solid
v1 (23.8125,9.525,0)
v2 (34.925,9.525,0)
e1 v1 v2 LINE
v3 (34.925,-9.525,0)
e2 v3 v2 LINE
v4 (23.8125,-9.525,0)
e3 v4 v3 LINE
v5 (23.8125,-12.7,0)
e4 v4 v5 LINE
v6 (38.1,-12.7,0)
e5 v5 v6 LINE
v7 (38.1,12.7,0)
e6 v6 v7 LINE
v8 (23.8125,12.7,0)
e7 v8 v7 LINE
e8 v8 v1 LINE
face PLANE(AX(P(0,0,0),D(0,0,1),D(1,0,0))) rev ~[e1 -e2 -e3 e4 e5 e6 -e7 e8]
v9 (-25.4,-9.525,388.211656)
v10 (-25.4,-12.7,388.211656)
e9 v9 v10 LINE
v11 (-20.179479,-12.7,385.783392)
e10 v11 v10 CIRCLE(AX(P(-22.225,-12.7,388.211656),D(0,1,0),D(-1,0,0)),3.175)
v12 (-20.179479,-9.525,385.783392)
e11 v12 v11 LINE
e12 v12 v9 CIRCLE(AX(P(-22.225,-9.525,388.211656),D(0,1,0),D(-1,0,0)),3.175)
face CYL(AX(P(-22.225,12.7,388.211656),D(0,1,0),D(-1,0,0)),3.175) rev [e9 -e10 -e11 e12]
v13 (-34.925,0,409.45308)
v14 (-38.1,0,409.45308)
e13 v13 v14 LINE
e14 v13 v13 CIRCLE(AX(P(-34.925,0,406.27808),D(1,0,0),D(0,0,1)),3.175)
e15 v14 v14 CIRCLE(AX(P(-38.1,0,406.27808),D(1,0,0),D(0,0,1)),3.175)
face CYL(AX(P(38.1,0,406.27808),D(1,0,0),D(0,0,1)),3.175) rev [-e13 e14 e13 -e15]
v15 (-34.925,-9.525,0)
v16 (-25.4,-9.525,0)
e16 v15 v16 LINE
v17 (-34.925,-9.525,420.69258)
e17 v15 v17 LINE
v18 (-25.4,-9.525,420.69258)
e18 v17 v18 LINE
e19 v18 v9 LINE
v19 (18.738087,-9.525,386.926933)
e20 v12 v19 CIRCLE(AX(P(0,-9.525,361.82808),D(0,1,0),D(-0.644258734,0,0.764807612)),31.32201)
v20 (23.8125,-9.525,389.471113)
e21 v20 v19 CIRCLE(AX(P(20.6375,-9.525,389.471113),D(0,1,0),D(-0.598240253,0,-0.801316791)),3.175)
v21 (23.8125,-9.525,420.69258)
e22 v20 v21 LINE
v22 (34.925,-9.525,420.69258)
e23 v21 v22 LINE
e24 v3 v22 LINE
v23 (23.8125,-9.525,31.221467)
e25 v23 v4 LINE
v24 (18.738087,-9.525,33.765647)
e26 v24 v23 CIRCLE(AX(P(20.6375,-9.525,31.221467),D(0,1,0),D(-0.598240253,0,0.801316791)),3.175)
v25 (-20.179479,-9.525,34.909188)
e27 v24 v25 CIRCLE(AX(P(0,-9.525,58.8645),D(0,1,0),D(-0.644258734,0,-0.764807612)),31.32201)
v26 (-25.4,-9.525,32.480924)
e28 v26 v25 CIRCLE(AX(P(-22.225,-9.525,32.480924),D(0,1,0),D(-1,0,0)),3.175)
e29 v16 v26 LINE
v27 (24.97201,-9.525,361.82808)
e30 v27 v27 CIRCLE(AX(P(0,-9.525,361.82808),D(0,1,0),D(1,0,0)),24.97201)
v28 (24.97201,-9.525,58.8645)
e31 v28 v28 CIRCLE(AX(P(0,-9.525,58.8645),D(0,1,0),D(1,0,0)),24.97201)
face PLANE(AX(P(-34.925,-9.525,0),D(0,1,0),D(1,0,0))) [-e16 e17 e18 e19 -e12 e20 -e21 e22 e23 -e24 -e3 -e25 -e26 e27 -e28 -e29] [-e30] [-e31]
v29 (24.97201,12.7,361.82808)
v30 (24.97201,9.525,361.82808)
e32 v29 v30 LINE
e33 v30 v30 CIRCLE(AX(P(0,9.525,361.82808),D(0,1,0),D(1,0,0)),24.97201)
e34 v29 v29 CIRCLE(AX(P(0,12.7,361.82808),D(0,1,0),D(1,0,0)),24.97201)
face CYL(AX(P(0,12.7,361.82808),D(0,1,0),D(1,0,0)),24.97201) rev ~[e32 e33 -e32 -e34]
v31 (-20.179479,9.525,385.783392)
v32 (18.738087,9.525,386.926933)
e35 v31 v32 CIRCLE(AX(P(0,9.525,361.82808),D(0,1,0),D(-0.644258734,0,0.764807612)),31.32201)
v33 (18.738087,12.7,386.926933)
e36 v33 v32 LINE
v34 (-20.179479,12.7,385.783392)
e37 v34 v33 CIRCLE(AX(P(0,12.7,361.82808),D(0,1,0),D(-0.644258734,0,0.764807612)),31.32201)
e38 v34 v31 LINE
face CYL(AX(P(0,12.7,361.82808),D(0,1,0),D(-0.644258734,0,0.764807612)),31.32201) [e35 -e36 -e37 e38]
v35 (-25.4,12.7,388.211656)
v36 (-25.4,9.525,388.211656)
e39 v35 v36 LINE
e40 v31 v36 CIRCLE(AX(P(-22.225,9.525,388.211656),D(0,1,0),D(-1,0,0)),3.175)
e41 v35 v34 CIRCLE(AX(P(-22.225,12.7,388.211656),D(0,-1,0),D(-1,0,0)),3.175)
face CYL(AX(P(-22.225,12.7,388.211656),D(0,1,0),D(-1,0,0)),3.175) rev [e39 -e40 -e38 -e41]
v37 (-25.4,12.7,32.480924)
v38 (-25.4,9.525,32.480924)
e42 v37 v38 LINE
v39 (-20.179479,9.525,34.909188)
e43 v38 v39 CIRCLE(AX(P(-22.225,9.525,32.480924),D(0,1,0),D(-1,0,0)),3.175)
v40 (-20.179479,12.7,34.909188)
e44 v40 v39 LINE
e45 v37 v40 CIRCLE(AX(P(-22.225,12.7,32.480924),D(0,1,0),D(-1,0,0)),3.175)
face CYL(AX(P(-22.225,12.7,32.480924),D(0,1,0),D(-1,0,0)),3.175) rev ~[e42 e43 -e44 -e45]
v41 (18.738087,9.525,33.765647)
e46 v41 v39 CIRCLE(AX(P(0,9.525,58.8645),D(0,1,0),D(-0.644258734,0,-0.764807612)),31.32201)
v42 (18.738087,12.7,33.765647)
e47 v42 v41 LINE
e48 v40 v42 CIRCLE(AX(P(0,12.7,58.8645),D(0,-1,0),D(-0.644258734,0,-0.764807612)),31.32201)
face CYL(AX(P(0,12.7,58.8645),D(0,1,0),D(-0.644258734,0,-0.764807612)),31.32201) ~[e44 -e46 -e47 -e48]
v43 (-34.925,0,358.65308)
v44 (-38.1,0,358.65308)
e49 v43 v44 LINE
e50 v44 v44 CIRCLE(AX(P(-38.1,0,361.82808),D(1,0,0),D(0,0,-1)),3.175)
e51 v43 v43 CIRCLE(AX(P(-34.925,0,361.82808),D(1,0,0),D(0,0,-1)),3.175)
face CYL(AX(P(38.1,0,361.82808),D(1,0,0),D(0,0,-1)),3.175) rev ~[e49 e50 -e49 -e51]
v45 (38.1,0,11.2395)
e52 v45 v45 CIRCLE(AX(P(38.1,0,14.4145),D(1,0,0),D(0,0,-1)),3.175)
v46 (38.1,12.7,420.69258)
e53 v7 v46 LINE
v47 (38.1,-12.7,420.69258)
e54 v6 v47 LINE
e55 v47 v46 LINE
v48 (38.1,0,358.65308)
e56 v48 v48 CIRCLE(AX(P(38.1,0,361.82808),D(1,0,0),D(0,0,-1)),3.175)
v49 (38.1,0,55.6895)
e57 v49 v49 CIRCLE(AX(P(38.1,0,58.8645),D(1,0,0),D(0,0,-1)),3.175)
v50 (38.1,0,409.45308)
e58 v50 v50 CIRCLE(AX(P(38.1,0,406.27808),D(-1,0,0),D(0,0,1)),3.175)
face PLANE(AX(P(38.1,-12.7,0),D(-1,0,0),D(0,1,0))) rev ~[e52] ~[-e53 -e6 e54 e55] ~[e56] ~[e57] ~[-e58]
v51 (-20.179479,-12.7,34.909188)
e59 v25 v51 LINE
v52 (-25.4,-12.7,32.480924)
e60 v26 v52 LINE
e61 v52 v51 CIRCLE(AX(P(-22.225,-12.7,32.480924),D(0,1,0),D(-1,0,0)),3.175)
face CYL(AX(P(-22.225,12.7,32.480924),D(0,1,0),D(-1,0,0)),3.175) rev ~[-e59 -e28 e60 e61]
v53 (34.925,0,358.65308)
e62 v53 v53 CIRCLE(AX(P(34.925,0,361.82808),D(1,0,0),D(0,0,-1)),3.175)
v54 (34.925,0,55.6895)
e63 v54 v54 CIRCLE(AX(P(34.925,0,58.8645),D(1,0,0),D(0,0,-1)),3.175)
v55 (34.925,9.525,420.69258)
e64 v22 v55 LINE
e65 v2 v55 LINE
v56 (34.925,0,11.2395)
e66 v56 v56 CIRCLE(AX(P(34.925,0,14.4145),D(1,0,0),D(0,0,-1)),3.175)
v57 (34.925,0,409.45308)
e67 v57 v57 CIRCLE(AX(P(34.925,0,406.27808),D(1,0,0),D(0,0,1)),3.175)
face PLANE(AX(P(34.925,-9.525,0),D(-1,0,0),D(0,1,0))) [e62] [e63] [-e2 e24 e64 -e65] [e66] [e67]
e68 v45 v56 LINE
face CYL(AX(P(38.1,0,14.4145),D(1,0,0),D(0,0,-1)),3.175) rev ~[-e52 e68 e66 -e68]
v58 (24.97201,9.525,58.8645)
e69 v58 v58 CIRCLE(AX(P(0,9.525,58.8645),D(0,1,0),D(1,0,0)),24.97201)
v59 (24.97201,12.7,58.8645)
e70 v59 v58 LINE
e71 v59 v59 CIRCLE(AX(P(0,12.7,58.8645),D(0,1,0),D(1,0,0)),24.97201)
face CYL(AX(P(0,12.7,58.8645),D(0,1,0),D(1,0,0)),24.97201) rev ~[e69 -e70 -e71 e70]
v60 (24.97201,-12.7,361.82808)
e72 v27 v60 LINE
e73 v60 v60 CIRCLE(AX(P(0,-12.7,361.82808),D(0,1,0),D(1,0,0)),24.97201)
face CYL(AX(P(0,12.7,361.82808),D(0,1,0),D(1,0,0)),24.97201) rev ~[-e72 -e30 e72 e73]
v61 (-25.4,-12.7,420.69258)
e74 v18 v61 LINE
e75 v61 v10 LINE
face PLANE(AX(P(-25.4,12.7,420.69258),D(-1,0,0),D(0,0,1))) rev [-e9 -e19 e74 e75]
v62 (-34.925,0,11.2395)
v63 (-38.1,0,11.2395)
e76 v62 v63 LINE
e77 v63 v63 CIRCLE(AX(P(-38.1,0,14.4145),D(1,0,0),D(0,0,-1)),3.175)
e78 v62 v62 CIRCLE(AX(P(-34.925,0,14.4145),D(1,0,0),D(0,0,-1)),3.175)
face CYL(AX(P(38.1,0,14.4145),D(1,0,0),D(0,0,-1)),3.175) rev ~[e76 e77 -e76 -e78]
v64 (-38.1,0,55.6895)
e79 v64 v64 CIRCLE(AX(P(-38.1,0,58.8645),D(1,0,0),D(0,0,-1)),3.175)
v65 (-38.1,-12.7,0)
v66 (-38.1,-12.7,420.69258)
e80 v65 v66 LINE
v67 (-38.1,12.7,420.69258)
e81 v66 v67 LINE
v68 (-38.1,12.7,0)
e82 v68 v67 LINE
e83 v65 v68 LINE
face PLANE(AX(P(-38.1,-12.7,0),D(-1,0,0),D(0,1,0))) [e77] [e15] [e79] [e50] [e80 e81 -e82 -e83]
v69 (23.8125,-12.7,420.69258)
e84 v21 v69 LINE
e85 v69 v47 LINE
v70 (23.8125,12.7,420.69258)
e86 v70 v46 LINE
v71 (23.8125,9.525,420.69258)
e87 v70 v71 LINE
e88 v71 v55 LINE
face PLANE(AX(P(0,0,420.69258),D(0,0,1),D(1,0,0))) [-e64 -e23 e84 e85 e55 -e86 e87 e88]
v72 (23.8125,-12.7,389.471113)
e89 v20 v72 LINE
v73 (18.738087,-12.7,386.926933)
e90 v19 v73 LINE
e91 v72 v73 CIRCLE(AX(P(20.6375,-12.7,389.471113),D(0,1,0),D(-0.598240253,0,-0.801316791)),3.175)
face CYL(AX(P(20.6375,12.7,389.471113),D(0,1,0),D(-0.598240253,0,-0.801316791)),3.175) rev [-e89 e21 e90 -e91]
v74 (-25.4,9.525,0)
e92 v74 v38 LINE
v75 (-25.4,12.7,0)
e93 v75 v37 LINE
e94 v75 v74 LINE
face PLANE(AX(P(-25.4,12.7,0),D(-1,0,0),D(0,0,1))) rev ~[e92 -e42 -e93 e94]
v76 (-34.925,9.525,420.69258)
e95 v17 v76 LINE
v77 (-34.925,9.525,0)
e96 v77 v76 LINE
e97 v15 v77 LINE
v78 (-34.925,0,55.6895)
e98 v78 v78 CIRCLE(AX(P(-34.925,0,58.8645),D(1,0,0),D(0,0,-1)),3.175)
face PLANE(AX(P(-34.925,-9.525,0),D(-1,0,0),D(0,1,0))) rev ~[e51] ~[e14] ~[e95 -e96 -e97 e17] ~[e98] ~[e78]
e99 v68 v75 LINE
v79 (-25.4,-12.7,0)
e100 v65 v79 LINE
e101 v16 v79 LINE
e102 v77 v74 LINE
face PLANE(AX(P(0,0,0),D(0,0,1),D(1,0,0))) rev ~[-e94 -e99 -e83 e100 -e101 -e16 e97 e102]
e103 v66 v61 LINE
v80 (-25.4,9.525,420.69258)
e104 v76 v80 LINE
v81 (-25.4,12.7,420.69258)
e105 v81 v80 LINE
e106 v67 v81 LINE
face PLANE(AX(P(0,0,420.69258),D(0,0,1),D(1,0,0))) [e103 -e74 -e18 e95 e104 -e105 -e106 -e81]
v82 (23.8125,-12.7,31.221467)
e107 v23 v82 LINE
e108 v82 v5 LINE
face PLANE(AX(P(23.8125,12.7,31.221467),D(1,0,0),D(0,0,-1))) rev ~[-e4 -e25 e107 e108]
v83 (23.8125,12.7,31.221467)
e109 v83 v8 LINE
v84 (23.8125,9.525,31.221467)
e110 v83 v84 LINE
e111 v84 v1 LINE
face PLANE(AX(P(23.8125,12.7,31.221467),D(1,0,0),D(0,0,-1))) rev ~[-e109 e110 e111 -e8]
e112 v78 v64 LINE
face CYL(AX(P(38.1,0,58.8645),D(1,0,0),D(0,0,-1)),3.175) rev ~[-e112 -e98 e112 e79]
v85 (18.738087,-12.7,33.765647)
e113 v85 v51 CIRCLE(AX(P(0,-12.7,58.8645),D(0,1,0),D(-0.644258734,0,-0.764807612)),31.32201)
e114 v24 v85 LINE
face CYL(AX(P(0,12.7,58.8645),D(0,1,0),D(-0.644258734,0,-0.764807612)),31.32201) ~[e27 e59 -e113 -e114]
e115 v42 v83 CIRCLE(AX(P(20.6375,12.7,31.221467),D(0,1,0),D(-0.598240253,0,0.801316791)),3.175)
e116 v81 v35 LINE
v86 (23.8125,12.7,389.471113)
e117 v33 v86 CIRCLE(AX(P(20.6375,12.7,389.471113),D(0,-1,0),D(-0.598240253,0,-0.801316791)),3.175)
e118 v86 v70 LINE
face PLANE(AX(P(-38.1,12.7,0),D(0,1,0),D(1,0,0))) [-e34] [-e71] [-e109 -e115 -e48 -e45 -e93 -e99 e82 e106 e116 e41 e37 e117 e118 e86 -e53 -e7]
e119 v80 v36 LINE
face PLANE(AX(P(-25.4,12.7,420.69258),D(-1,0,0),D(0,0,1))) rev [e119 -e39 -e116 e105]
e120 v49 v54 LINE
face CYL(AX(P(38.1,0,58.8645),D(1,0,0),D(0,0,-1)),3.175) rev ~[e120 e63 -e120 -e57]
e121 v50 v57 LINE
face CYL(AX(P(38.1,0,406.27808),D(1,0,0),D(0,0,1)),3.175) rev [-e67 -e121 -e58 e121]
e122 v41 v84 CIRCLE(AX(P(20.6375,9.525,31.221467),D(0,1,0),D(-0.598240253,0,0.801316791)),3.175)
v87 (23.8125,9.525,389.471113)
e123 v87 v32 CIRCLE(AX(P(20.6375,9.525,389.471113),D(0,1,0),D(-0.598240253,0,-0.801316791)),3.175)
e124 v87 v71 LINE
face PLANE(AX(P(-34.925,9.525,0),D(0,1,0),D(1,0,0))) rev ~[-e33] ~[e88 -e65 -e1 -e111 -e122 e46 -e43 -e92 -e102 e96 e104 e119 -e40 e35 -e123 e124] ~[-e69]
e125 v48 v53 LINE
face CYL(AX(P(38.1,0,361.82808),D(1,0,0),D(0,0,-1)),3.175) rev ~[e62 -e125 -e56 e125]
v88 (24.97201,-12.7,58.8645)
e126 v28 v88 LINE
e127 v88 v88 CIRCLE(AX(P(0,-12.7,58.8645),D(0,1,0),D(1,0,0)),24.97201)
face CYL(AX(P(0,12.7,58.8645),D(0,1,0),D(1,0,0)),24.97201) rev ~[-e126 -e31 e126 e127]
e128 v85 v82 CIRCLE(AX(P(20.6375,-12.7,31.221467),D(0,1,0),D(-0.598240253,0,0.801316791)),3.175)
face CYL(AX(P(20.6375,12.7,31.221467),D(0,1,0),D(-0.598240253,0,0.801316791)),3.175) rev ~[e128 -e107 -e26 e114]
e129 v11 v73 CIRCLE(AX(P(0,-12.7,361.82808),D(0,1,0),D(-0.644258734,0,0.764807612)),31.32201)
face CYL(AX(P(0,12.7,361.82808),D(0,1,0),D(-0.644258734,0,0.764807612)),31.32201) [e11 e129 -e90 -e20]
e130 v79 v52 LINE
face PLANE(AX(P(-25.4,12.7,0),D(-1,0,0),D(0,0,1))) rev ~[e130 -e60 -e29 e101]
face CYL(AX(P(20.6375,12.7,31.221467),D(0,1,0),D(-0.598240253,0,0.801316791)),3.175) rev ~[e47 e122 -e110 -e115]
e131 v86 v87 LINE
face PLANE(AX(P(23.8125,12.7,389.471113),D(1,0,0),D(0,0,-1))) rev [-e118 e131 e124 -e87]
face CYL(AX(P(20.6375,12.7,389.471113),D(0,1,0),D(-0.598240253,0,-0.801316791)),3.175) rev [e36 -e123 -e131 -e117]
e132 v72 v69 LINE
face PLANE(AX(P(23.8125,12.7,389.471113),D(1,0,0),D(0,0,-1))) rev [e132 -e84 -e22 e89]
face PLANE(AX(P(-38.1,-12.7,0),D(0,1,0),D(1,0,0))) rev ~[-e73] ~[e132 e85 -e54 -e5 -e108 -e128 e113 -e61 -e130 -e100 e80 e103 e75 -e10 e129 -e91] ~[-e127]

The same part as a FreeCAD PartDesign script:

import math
import FreeCAD as App
import Part
import Sketcher
Q = App.Units.Quantity


def add_polygon(sketch, points):
    """Adds a closed chain of lines whose ends are joined by coincident constraints."""
    first, n = sketch.GeometryCount, len(points)
    for a, b in zip(points, points[1:] + points[:1]):
        sketch.addGeometry(Part.LineSegment(App.Vector(*a, 0), App.Vector(*b, 0)), False)
    for i in range(n):
        sketch.addConstraint(Sketcher.Constraint("Coincident", first + i, 2, first + (i + 1) % n, 1))

doc = App.newDocument("Part")
params = doc.addObject("Spreadsheet::Sheet", "Params")
for row, (alias, value) in enumerate([
    ("sketch1_width", "3 in"),
    ("sketch1_height", "1 in"),
    ("sketch1_width2", "2.75 in"),
    ("sketch1_height2", "0.75 in"),
    ("pad1_length", "16.5627 in"),
    ("sketch3_radius", "0.125 in"),
    ("sketch3_width", "1.9375 in"),
    ("sketch4_diameter", "0.25 in"),
    ("sketch5_diameter", "0.25 in"),
], start=1):
    params.set(f"A{row}", alias)
    params.set(f"B{row}", "=" + value)
    params.setAlias(f"B{row}", alias)

body = doc.addObject("PartDesign::Body", "Body")

# Sketch on XY plane
sketch1 = body.newObject("Sketcher::SketchObject", "Sketch")
sketch1.AttachmentSupport = (doc.getObject("XY_Plane"), [""])
sketch1.MapMode = "FlatFace"
add_polygon(sketch1, [(-38, 13), (-38, -13), (38, -13), (38, 13)])  # lines 0-3
add_polygon(sketch1, [(35, -10), (-35, -10), (-35, 10), (35, 10)])  # lines 4-7
sketch1.addConstraint([
    Sketcher.Constraint("Vertical", 0),
    Sketcher.Constraint("Horizontal", 1),
    Sketcher.Constraint("Vertical", 2),
    Sketcher.Constraint("Horizontal", 3),
    Sketcher.Constraint("Horizontal", 4),
    Sketcher.Constraint("Vertical", 5),
    Sketcher.Constraint("Horizontal", 6),
    Sketcher.Constraint("Vertical", 7),
    Sketcher.Constraint("Symmetric", 0, 2, 2, 2, -1, 1),
    Sketcher.Constraint("Symmetric", 4, 2, 6, 2, -1, 1),
    Sketcher.Constraint("DistanceX", 1, 1, 1, 2, Q("3 in")),
    Sketcher.Constraint("DistanceY", 0, 2, 0, 1, Q("1 in")),
    Sketcher.Constraint("DistanceX", 4, 2, 4, 1, Q("2.75 in")),
    Sketcher.Constraint("DistanceY", 5, 1, 5, 2, Q("0.75 in")),
])
sketch1.setExpression("Constraints[18]", "Params.sketch1_width")
sketch1.setExpression("Constraints[19]", "Params.sketch1_height")
sketch1.setExpression("Constraints[20]", "Params.sketch1_width2")
sketch1.setExpression("Constraints[21]", "Params.sketch1_height2")
pad1 = body.newObject("PartDesign::Pad", "Pad")
pad1.Profile = sketch1
pad1.setExpression("Length", "Params.pad1_length")

# Sketch on XZ plane
sketch2 = body.newObject("Sketcher::SketchObject", "Sketch001")
sketch2.AttachmentSupport = (doc.getObject("XZ_Plane"), [""])
sketch2.MapMode = "FlatFace"
sketch2.AttachmentOffset = App.Placement(App.Vector(0, 0, -0.5 * 25.4), App.Rotation())
sketch2.addGeometry([
    Part.Circle(App.Vector(0, 362, 0), App.Vector(0, 0, 1), 25),
    Part.Circle(App.Vector(0, 59, 0), App.Vector(0, 0, 1), 25),
], False)
sketch2.addConstraint([
    Sketcher.Constraint("Equal", 0, 1),
    Sketcher.Constraint("PointOnObject", 0, 3, -2),
    Sketcher.Constraint("PointOnObject", 1, 3, -2),
    Sketcher.Constraint("Diameter", 0, Q("1.9663 in")),
    Sketcher.Constraint("DistanceY", -1, 1, 0, 3, Q("14.2452 in")),
    Sketcher.Constraint("DistanceY", -1, 1, 1, 3, Q("2.3175 in")),
])
pocket1 = body.newObject("PartDesign::Pocket", "Pocket")
pocket1.Profile = sketch2
pocket1.Type = "ThroughAll"
pocket1.Reversed = True

# Sketch on XZ plane
sketch3 = body.newObject("Sketcher::SketchObject", "Sketch002")
sketch3.AttachmentSupport = (doc.getObject("XZ_Plane"), [""])
sketch3.MapMode = "FlatFace"
sketch3.AttachmentOffset = App.Placement(App.Vector(0, 0, -0.5 * 25.4), App.Rotation())
sketch3.addGeometry([
    Part.LineSegment(App.Vector(23.8, 0, 0), App.Vector(-25.4, 0, 0)),  # 0
    Part.LineSegment(App.Vector(-25.4, 0, 0), App.Vector(-25.4, 32.5, 0)),  # 1
    Part.ArcOfCircle(Part.Circle(App.Vector(-22.2, 32.5, 0), App.Vector(0, 0, 1), 3.2), math.radians(50), math.radians(180)),  # 2
    Part.ArcOfCircle(Part.Circle(App.Vector(0, 58.9, 0), App.Vector(0, 0, 1), 31.3), math.radians(-130), math.radians(-53)),  # 3
    Part.ArcOfCircle(Part.Circle(App.Vector(20.6, 31.2, 0), App.Vector(0, 0, 1), 3.2), math.radians(0), math.radians(127)),  # 4
    Part.LineSegment(App.Vector(23.8, 31.2, 0), App.Vector(23.8, 0, 0)),  # 5
], False)
sketch3.addConstraint([
    Sketcher.Constraint("Coincident", 0, 2, 1, 1),
    Sketcher.Constraint("Tangent", 1, 2, 2, 2),
    Sketcher.Constraint("Tangent", 2, 1, 3, 1),
    Sketcher.Constraint("Tangent", 3, 2, 4, 2),
    Sketcher.Constraint("Tangent", 4, 1, 5, 1),
    Sketcher.Constraint("Coincident", 5, 2, 0, 1),
    Sketcher.Constraint("Horizontal", 0),
    Sketcher.Constraint("Vertical", 1),
    Sketcher.Constraint("Vertical", 5),
    Sketcher.Constraint("Equal", 2, 4),
    Sketcher.Constraint("PointOnObject", 3, 3, -2),
    Sketcher.Constraint("PointOnObject", 0, 2, -1),
    Sketcher.Constraint("DistanceX", 0, 2, -1, 1, Q("1 in")),
    Sketcher.Constraint("Radius", 2, Q("0.125 in")),
    Sketcher.Constraint("DistanceX", 0, 2, 0, 1, Q("1.9375 in")),
    Sketcher.Constraint("Radius", 3, 31.32201),
    Sketcher.Constraint("DistanceY", -1, 1, 3, 3, Q("2.3175 in")),
])
sketch3.setExpression("Constraints[13]", "Params.sketch3_radius")
sketch3.setExpression("Constraints[14]", "Params.sketch3_width")
pocket2 = body.newObject("PartDesign::Pocket", "Pocket001")
pocket2.Profile = sketch3
pocket2.Type = "ThroughAll"
pocket2.Reversed = True

# Sketch on YZ plane
sketch4 = body.newObject("Sketcher::SketchObject", "Sketch003")
sketch4.AttachmentSupport = (doc.getObject("YZ_Plane"), [""])
sketch4.MapMode = "FlatFace"
sketch4.AttachmentOffset = App.Placement(App.Vector(0, 0, 1.5 * 25.4), App.Rotation())
sketch4.addGeometry(Part.Circle(App.Vector(0, 14.4, 0), App.Vector(0, 0, 1), 3.2), False)
sketch4.addConstraint([
    Sketcher.Constraint("PointOnObject", 0, 3, -2),
    Sketcher.Constraint("Diameter", 0, Q("0.25 in")),
    Sketcher.Constraint("DistanceY", -1, 1, 0, 3, Q("0.5675 in")),
])
sketch4.setExpression("Constraints[1]", "Params.sketch4_diameter")
pocket3 = body.newObject("PartDesign::Pocket", "Pocket002")
pocket3.Profile = sketch4
pocket3.Type = "ThroughAll"
doc.recompute()

datumplane = body.newObject("PartDesign::Plane", "DatumPlane")
datumplane.AttachmentSupport = (doc.getObject("XY_Plane"), [""])
datumplane.MapMode = "FlatFace"
datumplane.AttachmentOffset = App.Placement(App.Vector(0, 0, 210.34629), App.Rotation())
mirrored = body.newObject("PartDesign::Mirrored", "Mirrored")
mirrored.Originals = [pocket2, pocket3]
mirrored.MirrorPlane = (datumplane, [""])
body.Tip = mirrored

# Sketch on YZ plane
sketch5 = body.newObject("Sketcher::SketchObject", "Sketch004")
sketch5.AttachmentSupport = (doc.getObject("YZ_Plane"), [""])
sketch5.MapMode = "FlatFace"
sketch5.AttachmentOffset = App.Placement(App.Vector(0, 0, 1.5 * 25.4), App.Rotation())
sketch5.addGeometry([
    Part.Circle(App.Vector(0, 58.9, 0), App.Vector(0, 0, 1), 3.2),
    Part.Circle(App.Vector(0, 361.8, 0), App.Vector(0, 0, 1), 3.2),
], False)
sketch5.addConstraint([
    Sketcher.Constraint("Equal", 0, 1),
    Sketcher.Constraint("PointOnObject", 0, 3, -2),
    Sketcher.Constraint("PointOnObject", 1, 3, -2),
    Sketcher.Constraint("Diameter", 0, Q("0.25 in")),
    Sketcher.Constraint("DistanceY", -1, 1, 0, 3, Q("2.3175 in")),
    Sketcher.Constraint("DistanceY", -1, 1, 1, 3, Q("14.2452 in")),
])
sketch5.setExpression("Constraints[3]", "Params.sketch5_diameter")
pocket4 = body.newObject("PartDesign::Pocket", "Pocket003")
pocket4.Profile = sketch5
pocket4.Type = "ThroughAll"

doc.recompute()
